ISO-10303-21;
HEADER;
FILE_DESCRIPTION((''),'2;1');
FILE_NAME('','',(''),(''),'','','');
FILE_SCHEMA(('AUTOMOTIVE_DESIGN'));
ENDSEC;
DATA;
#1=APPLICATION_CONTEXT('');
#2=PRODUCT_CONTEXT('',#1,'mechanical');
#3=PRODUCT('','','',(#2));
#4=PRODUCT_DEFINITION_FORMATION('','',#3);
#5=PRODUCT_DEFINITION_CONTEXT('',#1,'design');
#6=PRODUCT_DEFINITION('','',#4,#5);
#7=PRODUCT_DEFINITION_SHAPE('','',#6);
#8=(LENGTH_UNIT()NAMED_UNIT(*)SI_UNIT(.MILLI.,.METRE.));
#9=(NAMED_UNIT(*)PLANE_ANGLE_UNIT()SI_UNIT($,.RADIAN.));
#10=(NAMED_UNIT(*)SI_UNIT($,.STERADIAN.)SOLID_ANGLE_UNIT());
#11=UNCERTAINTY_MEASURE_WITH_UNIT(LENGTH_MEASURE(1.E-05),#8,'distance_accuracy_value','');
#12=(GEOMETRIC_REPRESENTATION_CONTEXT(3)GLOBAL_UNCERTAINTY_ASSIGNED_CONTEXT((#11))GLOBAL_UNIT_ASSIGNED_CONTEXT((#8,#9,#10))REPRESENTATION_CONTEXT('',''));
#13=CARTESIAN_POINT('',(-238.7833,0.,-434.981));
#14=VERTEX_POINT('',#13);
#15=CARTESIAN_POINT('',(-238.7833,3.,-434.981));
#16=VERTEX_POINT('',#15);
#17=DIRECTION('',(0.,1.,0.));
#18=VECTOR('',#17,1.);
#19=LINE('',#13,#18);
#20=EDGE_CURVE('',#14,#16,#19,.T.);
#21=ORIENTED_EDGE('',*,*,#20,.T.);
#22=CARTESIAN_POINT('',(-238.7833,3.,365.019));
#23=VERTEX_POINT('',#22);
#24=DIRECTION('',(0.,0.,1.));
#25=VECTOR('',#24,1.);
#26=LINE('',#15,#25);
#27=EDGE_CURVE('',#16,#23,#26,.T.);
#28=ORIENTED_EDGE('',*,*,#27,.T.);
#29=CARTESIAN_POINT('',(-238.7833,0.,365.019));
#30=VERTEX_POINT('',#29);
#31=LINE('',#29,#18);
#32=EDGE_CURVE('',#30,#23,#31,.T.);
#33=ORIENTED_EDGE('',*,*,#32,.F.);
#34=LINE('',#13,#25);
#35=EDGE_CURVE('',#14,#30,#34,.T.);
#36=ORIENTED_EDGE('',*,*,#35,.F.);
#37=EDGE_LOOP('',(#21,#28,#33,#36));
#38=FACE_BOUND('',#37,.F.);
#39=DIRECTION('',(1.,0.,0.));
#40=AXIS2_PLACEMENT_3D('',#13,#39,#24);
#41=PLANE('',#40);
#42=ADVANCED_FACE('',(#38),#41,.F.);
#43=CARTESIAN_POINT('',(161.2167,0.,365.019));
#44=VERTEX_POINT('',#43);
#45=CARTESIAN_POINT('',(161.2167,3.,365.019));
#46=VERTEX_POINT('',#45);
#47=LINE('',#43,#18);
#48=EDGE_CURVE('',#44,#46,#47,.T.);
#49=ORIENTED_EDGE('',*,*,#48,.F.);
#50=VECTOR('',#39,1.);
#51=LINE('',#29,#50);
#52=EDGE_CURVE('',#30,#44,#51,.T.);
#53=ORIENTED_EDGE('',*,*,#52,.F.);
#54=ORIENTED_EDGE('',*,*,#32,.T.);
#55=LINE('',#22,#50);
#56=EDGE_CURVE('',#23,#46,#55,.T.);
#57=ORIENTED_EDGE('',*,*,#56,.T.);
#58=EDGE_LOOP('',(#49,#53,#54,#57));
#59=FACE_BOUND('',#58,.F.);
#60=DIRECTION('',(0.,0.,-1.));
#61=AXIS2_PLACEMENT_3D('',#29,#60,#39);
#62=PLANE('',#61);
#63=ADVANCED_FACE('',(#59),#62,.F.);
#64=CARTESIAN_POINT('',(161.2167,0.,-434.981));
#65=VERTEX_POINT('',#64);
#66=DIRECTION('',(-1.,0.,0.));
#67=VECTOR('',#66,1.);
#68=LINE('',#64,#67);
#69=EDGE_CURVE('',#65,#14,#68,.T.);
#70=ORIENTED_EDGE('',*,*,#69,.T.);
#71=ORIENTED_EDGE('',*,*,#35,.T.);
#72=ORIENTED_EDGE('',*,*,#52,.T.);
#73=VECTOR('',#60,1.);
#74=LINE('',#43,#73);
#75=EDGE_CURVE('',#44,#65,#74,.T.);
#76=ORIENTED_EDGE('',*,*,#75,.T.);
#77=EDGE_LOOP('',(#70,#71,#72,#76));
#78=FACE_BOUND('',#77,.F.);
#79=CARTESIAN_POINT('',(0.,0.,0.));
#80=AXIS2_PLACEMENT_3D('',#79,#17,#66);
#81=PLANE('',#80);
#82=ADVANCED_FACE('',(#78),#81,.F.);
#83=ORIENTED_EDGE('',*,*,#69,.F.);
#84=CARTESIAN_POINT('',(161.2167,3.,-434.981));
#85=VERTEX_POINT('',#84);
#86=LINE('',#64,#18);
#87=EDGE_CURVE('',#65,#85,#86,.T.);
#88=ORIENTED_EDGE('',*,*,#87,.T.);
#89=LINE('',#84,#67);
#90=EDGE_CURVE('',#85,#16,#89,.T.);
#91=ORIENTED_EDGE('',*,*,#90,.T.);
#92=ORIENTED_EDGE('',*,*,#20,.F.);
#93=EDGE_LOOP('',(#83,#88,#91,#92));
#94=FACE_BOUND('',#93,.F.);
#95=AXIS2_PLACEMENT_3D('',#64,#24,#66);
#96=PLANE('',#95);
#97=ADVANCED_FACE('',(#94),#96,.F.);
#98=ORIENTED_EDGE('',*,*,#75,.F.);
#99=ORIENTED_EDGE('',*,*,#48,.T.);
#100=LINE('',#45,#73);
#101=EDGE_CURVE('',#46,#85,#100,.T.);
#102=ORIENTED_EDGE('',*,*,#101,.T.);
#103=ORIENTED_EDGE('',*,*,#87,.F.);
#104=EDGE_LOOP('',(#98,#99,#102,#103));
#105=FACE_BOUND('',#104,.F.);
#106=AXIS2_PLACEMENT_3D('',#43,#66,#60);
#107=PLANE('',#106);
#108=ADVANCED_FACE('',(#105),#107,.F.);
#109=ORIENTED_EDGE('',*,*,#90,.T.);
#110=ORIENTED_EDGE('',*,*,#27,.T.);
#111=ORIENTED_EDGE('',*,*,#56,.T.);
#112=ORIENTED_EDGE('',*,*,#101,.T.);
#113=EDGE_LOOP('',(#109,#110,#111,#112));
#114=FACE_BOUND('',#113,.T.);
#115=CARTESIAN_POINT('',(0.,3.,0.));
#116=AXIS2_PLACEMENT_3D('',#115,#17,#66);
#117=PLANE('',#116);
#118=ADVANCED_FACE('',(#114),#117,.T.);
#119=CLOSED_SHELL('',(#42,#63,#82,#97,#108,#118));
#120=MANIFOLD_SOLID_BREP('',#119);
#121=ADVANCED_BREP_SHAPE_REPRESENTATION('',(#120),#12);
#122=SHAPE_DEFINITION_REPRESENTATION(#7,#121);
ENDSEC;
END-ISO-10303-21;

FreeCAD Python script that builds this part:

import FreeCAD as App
import Part
import Sketcher

V = App.Vector
Q = App.Units.Quantity

doc = App.newDocument("Part")
params = doc.addObject("Spreadsheet::Sheet", "Params")
for row, (alias, value) in enumerate([
    ("sketch1_width", "400 mm"),
    ("sketch1_height", "800 mm"),
    ("pad1_length", "3 mm"),
], start=1):
    params.set(f"A{row}", alias)
    params.set(f"B{row}", "=" + value)
    params.setAlias(f"B{row}", alias)

body = doc.addObject("PartDesign::Body", "Body")

sketch1 = body.newObject("Sketcher::SketchObject", "Sketch")
sketch1.AttachmentSupport = (doc.getObject("XZ_Plane"), [""])
sketch1.MapMode = "FlatFace"
sketch1.addGeometry(Part.LineSegment(V(-239, -435, 0), V(-239, 365, 0)), False)
sketch1.addGeometry(Part.LineSegment(V(-239, 365, 0), V(161, 365, 0)), False)
sketch1.addGeometry(Part.LineSegment(V(161, 365, 0), V(161, -435, 0)), False)
sketch1.addGeometry(Part.LineSegment(V(161, -435, 0), V(-239, -435, 0)), False)
sketch1.addConstraint(Sketcher.Constraint("Coincident", 0, 2, 1, 1))
sketch1.addConstraint(Sketcher.Constraint("Coincident", 1, 2, 2, 1))
sketch1.addConstraint(Sketcher.Constraint("Coincident", 2, 2, 3, 1))
sketch1.addConstraint(Sketcher.Constraint("Coincident", 3, 2, 0, 1))
sketch1.addConstraint(Sketcher.Constraint("Vertical", 0))
sketch1.addConstraint(Sketcher.Constraint("Horizontal", 1))
sketch1.addConstraint(Sketcher.Constraint("Vertical", 2))
sketch1.addConstraint(Sketcher.Constraint("Horizontal", 3))
sketch1.addConstraint(Sketcher.Constraint("DistanceX", 1, 1, 1, 2, Q("400 mm")))
sketch1.addConstraint(Sketcher.Constraint("DistanceY", 0, 1, 0, 2, Q("800 mm")))
sketch1.addConstraint(Sketcher.Constraint("DistanceY", -1, 1, 0, 2, Q("365.019 mm")))
sketch1.addConstraint(Sketcher.Constraint("DistanceX", 0, 2, -1, 1, Q("238.7833 mm")))
sketch1.setExpression("Constraints[8]", "Params.sketch1_width")
sketch1.setExpression("Constraints[9]", "Params.sketch1_height")
pad1 = body.newObject("PartDesign::Pad", "Pad")
pad1.Profile = sketch1
pad1.setExpression("Length", "Params.pad1_length")
pad1.Reversed = True

doc.recompute()
